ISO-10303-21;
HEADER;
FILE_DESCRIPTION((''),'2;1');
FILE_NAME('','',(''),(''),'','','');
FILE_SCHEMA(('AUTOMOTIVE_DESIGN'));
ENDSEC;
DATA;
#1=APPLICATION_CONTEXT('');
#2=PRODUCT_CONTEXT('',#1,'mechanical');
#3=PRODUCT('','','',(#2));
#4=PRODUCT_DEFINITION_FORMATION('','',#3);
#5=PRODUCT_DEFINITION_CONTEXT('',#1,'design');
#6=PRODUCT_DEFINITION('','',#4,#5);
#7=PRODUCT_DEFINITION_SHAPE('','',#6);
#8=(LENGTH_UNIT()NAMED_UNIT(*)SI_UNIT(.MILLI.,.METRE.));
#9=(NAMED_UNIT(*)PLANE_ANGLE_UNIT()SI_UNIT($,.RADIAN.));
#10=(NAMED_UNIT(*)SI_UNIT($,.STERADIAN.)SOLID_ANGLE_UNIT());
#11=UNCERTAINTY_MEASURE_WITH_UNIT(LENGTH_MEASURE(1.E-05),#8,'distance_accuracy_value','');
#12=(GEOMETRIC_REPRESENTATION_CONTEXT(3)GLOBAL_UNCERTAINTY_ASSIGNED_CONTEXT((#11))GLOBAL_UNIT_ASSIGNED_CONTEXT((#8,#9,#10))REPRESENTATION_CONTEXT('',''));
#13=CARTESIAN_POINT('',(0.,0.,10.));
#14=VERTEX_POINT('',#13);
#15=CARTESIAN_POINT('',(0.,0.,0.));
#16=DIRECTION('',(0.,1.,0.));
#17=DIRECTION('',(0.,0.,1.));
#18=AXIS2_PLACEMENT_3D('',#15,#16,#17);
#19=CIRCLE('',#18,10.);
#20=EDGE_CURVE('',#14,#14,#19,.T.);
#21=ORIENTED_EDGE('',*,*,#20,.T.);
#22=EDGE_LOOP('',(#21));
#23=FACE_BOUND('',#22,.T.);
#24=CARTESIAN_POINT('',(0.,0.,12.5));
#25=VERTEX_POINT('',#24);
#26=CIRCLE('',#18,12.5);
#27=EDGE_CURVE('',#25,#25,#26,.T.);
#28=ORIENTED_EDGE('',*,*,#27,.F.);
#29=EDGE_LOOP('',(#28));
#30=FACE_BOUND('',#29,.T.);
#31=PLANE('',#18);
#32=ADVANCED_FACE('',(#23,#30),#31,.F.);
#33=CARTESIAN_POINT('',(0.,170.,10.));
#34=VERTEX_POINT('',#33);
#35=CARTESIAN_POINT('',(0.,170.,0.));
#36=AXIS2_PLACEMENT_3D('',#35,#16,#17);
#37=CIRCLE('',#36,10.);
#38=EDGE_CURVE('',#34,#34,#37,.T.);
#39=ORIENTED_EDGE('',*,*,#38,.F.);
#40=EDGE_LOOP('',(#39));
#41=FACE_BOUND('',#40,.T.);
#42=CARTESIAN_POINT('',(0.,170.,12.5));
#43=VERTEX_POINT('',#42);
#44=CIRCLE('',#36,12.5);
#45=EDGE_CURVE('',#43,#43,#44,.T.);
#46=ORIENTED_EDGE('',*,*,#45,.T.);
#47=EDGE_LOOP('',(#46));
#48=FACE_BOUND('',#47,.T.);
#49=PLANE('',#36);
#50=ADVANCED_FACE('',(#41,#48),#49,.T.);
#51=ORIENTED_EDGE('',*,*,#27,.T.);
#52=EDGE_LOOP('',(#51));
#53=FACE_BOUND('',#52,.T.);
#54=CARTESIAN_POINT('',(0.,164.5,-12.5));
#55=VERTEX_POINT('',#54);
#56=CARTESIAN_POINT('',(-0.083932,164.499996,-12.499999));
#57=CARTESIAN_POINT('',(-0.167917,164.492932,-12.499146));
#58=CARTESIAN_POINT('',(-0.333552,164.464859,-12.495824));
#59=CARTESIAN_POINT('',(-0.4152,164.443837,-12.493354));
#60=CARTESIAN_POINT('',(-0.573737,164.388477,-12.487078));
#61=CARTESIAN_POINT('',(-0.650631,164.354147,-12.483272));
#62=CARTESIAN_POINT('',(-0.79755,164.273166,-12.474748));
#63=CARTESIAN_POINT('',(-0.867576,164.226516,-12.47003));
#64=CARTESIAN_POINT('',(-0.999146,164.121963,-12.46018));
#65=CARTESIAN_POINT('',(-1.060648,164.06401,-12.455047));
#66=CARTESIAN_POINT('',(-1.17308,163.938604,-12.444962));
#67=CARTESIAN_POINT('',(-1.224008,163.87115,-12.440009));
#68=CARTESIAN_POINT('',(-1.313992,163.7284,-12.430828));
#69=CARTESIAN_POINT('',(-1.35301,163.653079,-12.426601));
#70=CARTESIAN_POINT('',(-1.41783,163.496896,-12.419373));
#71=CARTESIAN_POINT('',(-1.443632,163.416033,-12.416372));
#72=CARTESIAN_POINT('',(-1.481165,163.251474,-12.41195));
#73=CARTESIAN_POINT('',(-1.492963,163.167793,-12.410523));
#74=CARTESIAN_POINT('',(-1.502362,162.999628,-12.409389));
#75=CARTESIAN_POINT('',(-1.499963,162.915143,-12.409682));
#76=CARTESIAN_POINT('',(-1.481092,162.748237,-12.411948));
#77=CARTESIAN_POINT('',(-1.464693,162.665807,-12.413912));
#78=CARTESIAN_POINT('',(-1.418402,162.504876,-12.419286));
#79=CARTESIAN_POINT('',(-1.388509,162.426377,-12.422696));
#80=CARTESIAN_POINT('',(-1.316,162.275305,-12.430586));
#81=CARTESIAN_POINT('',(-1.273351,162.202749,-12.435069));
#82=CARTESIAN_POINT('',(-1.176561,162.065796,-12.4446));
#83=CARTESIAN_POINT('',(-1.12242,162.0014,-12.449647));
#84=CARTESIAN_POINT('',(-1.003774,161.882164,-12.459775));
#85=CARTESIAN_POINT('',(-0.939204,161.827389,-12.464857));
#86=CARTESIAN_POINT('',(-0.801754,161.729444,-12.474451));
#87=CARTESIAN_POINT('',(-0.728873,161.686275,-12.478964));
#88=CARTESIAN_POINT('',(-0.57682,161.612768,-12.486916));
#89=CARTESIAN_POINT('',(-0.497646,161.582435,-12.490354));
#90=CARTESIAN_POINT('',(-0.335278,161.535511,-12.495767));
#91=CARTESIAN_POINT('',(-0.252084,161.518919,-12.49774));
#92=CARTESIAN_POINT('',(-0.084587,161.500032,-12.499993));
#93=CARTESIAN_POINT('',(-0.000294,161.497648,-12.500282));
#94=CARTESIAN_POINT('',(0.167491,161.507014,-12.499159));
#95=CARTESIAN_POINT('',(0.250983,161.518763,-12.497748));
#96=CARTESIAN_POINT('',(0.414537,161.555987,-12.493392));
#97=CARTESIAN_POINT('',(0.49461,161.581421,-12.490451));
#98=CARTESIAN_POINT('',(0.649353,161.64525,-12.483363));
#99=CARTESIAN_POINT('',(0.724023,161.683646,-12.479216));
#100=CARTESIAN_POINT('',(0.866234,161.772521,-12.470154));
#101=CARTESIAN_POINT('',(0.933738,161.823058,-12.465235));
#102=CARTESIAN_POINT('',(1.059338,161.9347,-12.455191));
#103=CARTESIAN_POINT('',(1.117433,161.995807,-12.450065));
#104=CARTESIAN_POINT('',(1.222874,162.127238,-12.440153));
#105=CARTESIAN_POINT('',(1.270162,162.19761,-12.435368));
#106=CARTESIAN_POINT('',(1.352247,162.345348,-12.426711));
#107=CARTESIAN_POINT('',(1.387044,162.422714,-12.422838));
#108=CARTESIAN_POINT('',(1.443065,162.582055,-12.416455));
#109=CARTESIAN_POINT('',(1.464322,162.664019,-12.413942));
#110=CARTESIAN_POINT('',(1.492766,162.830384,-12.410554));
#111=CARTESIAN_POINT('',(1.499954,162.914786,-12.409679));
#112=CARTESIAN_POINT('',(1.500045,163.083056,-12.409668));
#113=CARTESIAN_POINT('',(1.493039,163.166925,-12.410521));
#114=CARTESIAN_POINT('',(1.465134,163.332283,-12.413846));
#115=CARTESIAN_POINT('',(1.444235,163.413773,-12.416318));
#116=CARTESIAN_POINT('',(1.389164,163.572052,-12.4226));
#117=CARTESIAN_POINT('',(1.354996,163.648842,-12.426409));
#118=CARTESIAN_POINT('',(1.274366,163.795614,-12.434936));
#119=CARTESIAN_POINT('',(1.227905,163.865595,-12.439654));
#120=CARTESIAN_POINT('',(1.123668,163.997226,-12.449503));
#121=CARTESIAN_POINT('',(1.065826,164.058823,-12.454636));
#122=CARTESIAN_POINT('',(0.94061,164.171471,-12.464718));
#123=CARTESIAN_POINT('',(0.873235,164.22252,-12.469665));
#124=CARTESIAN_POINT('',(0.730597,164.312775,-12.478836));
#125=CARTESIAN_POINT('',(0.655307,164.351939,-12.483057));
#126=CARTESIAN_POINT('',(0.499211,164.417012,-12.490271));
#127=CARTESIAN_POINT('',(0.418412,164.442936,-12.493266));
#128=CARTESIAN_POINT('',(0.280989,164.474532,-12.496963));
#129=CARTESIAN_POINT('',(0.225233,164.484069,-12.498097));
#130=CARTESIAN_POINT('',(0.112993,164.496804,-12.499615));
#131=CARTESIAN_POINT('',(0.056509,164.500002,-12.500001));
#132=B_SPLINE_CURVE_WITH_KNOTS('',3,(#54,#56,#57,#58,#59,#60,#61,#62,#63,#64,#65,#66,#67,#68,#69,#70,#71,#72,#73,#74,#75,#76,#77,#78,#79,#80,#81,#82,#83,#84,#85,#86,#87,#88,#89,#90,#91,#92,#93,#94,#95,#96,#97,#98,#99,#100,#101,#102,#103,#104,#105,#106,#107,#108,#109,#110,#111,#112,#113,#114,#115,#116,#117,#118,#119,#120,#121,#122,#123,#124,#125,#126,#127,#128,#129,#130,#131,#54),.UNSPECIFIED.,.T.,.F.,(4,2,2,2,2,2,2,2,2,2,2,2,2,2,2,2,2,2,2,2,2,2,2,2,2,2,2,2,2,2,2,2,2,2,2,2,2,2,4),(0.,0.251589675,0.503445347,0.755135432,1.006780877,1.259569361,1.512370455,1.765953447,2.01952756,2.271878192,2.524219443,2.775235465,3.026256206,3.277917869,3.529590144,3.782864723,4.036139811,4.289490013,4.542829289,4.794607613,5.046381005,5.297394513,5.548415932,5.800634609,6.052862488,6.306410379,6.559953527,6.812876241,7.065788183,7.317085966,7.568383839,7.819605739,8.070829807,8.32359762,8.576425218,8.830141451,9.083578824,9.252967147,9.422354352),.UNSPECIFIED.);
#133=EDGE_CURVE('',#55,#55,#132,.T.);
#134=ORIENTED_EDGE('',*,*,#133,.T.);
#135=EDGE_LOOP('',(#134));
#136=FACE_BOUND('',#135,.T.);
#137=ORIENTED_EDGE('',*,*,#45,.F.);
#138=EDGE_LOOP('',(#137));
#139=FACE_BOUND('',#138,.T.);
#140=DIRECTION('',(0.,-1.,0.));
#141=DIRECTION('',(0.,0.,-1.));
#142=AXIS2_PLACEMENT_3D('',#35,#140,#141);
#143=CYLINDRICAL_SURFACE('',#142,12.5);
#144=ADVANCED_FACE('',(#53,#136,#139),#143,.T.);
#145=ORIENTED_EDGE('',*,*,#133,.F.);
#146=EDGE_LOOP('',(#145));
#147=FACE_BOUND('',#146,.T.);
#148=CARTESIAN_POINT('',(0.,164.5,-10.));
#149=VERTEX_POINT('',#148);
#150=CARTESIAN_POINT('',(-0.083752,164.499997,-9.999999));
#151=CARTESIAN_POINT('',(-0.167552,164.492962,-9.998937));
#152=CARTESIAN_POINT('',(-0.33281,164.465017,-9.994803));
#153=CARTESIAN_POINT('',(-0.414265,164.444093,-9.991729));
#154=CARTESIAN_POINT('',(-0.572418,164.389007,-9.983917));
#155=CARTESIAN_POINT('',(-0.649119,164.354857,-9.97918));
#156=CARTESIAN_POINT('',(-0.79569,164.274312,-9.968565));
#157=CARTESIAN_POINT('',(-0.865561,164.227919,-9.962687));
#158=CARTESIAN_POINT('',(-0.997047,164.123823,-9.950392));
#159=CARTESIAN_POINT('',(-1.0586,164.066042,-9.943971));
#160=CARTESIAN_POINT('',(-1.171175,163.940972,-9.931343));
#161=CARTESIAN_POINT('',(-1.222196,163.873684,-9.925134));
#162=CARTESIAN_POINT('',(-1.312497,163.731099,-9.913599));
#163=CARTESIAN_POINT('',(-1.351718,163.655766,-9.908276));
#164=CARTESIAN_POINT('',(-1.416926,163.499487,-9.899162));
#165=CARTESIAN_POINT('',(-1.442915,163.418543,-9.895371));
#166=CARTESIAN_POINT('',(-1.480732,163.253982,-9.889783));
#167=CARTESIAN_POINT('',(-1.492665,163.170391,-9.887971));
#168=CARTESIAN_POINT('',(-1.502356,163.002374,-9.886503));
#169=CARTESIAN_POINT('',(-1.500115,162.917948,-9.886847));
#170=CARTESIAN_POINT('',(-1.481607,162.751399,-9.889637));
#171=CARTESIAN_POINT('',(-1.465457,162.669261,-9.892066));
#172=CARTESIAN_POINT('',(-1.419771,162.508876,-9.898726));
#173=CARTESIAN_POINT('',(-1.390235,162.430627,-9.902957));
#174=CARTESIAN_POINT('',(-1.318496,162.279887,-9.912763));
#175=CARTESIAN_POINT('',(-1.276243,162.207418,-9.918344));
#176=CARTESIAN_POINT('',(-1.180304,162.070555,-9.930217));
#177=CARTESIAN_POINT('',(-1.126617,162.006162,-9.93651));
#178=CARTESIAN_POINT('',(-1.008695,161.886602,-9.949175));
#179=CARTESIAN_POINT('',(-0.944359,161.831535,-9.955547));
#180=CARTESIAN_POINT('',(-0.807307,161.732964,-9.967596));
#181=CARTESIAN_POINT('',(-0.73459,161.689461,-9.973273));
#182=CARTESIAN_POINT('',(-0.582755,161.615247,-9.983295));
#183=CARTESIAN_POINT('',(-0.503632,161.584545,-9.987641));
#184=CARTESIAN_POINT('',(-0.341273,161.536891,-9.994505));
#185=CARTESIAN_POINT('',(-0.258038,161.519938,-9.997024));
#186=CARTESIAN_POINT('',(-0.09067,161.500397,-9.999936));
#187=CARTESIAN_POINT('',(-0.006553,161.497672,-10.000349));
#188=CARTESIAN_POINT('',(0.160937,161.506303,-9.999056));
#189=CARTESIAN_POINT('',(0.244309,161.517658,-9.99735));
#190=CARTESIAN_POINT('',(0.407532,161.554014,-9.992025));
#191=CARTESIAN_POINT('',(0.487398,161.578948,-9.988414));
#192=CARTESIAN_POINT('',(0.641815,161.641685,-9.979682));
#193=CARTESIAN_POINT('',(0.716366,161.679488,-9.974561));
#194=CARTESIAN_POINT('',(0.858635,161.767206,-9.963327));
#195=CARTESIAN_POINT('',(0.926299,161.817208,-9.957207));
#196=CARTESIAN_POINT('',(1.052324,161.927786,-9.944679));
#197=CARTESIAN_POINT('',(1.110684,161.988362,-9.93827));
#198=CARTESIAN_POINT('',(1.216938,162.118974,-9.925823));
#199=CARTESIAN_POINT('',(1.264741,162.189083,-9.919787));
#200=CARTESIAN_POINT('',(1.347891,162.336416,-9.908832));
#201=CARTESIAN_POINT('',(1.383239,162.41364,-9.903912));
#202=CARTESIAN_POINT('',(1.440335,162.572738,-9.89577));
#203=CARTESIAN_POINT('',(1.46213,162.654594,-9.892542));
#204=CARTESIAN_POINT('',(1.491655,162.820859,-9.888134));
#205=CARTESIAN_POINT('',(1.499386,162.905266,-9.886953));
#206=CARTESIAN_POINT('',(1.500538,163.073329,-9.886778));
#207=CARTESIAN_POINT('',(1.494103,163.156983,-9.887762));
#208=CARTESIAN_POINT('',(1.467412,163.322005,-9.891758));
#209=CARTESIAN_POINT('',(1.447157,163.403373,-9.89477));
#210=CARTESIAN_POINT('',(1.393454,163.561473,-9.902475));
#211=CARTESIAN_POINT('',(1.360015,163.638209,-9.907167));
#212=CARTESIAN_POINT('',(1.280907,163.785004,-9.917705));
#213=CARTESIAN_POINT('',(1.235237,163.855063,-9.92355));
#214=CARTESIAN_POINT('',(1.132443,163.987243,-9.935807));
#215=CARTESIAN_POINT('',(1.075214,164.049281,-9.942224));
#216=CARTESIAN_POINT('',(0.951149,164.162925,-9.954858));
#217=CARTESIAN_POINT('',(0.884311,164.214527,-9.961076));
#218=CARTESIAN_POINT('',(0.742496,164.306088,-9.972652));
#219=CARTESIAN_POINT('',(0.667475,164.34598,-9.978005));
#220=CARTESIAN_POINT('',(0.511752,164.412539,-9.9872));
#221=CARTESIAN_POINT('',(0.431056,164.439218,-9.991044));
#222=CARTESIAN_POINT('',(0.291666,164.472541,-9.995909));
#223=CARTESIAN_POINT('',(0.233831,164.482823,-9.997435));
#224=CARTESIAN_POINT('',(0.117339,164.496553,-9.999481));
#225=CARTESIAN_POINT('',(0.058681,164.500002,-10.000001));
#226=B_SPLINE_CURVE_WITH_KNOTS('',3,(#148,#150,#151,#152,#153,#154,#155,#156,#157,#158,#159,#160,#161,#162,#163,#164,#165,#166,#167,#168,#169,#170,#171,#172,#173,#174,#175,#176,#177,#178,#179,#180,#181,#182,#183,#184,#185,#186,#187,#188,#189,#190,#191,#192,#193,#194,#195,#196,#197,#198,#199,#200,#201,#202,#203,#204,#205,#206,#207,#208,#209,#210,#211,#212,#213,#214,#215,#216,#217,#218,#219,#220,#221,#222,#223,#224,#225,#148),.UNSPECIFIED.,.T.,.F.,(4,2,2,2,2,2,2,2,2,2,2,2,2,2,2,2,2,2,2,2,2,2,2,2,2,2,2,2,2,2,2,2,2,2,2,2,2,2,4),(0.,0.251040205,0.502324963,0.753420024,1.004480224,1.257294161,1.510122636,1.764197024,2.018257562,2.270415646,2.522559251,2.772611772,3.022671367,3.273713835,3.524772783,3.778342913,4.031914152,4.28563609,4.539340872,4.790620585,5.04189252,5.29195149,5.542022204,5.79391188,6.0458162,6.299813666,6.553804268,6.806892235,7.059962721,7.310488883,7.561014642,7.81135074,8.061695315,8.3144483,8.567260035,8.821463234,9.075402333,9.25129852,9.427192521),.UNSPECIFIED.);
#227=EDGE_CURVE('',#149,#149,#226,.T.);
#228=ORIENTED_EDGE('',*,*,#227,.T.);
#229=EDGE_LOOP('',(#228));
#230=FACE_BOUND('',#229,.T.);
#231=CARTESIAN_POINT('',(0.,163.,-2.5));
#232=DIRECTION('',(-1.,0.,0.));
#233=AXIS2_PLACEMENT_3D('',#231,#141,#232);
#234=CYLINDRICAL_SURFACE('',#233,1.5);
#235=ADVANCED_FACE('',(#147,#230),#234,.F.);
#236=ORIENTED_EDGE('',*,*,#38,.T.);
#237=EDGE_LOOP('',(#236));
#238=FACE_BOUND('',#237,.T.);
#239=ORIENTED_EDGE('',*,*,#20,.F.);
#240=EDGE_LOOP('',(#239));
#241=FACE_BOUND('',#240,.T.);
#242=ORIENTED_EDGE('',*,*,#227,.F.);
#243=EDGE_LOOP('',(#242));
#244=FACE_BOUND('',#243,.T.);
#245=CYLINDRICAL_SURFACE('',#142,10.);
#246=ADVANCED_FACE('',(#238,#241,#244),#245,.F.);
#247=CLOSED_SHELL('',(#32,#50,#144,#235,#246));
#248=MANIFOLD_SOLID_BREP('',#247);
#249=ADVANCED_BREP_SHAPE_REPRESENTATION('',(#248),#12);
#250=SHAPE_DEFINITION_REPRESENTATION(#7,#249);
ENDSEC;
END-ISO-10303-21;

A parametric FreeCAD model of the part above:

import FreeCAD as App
import Part
import Sketcher

doc = App.newDocument("Part")
params = doc.addObject("Spreadsheet::Sheet", "Params")
for row, (alias, value) in enumerate([
    ("sketch1_diameter", "25 mm"),
    ("sketch1_diameter2", "20 mm"),
    ("pad1_length", "170 mm"),
    ("sketch2_diameter", "3 mm"),
    ("pocket1_length", "10 mm"),
], start=1):
    params.set(f"A{row}", alias)
    params.set(f"B{row}", "=" + value)
    params.setAlias(f"B{row}", alias)

body = doc.addObject("PartDesign::Body", "Body")

# Sketch on XZ plane
sketch1 = body.newObject("Sketcher::SketchObject", "Sketch")
sketch1.AttachmentSupport = (doc.getObject("XZ_Plane"), [""])
sketch1.MapMode = "FlatFace"
sketch1.addGeometry(Part.Circle(App.Vector(0, 0, 0), App.Vector(0, 0, 1), 12), False)
sketch1.addGeometry(Part.Circle(App.Vector(0, 0, 0), App.Vector(0, 0, 1), 10), False)
sketch1.addConstraint(Sketcher.Constraint("Coincident", 0, 3, -1, 1))
sketch1.addConstraint(Sketcher.Constraint("Coincident", 1, 3, -1, 1))
sketch1.addConstraint(Sketcher.Constraint("Diameter", 0, 25.0))
sketch1.addConstraint(Sketcher.Constraint("Diameter", 1, 20.0))
sketch1.setExpression("Constraints[2]", "Params.sketch1_diameter")
sketch1.setExpression("Constraints[3]", "Params.sketch1_diameter2")
pad1 = body.newObject("PartDesign::Pad", "Pad")
pad1.Profile = sketch1
pad1.setExpression("Length", "Params.pad1_length")
pad1.Reversed = True

# Sketch on XY plane
sketch2 = body.newObject("Sketcher::SketchObject", "Sketch001")
sketch2.AttachmentSupport = (doc.getObject("XY_Plane"), [""])
sketch2.MapMode = "FlatFace"
sketch2.AttachmentOffset = App.Placement(App.Vector(0, 0, -12.5), App.Rotation())
sketch2.addGeometry(Part.Circle(App.Vector(0, 163, 0), App.Vector(0, 0, 1), 1.5), False)
sketch2.addConstraint(Sketcher.Constraint("PointOnObject", 0, 3, -2))
sketch2.addConstraint(Sketcher.Constraint("Diameter", 0, 3.0))
sketch2.addConstraint(Sketcher.Constraint("DistanceY", -1, 1, 0, 3, 163.0))
sketch2.setExpression("Constraints[1]", "Params.sketch2_diameter")
pocket1 = body.newObject("PartDesign::Pocket", "Pocket")
pocket1.Profile = sketch2
pocket1.setExpression("Length", "Params.pocket1_length")
pocket1.Reversed = True

doc.recompute()
